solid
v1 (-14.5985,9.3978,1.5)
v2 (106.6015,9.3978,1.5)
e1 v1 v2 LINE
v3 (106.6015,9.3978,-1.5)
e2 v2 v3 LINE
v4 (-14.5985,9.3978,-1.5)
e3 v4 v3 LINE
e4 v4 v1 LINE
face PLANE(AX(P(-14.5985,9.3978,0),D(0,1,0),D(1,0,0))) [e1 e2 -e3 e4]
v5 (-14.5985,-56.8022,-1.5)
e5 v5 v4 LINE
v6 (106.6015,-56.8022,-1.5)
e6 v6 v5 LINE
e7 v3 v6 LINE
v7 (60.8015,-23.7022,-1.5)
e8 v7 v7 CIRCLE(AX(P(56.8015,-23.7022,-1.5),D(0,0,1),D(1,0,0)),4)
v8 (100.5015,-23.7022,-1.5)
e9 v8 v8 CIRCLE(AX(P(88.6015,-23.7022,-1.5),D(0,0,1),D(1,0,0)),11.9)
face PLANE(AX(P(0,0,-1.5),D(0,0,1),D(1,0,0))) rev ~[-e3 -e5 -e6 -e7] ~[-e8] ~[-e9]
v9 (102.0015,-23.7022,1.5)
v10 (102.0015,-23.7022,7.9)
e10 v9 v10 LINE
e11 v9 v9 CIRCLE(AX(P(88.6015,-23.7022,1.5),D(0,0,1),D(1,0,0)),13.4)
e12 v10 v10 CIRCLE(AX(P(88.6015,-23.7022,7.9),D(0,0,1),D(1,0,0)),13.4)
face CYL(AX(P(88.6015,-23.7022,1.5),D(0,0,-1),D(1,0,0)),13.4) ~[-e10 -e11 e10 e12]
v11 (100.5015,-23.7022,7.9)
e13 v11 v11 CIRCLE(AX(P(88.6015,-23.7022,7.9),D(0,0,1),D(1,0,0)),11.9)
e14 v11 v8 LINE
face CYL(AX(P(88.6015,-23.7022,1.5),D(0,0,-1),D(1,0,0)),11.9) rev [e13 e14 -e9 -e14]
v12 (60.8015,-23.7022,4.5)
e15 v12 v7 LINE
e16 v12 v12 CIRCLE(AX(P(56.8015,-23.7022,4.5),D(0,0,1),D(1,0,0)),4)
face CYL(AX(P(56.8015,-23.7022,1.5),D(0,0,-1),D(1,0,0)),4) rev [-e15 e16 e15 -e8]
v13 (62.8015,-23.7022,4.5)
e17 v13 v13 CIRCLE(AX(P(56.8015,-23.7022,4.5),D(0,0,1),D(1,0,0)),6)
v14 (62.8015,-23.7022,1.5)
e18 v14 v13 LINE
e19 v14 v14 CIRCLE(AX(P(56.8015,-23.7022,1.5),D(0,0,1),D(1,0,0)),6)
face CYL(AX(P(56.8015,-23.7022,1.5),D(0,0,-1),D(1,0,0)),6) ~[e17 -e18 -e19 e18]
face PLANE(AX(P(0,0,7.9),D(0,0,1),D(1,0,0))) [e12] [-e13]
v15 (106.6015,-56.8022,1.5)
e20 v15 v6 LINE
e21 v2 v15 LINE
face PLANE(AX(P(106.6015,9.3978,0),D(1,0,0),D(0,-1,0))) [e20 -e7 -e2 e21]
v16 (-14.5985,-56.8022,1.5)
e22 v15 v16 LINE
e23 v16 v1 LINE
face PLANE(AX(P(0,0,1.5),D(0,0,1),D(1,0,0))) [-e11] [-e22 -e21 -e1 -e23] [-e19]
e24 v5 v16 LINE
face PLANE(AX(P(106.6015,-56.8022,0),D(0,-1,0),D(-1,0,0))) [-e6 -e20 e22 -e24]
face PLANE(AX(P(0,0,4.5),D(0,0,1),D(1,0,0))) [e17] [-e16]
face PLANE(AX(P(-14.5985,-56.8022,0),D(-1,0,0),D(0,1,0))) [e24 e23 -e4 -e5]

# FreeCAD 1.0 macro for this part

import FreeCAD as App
import Part
import Sketcher

V = App.Vector
Q = App.Units.Quantity

doc = App.newDocument("Part")
body = doc.addObject("PartDesign::Body", "Body")

# Sketch on XY plane
sketch1 = doc.addObject("Sketcher::SketchObject", "Sketch")
body.addObject(sketch1)
sketch1.AttachmentSupport = (doc.XY_Plane, [""])
sketch1.MapMode = "FlatFace"
sketch1.addGeometry(Part.LineSegment(V(106.6, 9.4, 0), V(-14.6, 9.4, 0)), False)
sketch1.addGeometry(Part.LineSegment(V(-14.6, 9.4, 0), V(-14.6, -56.8, 0)), False)
sketch1.addGeometry(Part.LineSegment(V(-14.6, -56.8, 0), V(106.6, -56.8, 0)), False)
sketch1.addGeometry(Part.LineSegment(V(106.6, -56.8, 0), V(106.6, 9.4, 0)), False)
sketch1.addGeometry(Part.Circle(V(56.8, -23.7, 0), V(0, 0, 1), 4), False)
sketch1.addGeometry(Part.Circle(V(88.6, -23.7, 0), V(0, 0, 1), 11.9), False)
sketch1.addConstraint(Sketcher.Constraint("Coincident", 0, 2, 1, 1))
sketch1.addConstraint(Sketcher.Constraint("Coincident", 1, 2, 2, 1))
sketch1.addConstraint(Sketcher.Constraint("Coincident", 2, 2, 3, 1))
sketch1.addConstraint(Sketcher.Constraint("Coincident", 3, 2, 0, 1))
sketch1.addConstraint(Sketcher.Constraint("Horizontal", 0))
sketch1.addConstraint(Sketcher.Constraint("Vertical", 1))
sketch1.addConstraint(Sketcher.Constraint("Horizontal", 2))
sketch1.addConstraint(Sketcher.Constraint("Vertical", 3))
sketch1.addConstraint(Sketcher.Constraint("Horizontal", 4, 3, 5, 3))
sketch1.addConstraint(Sketcher.Constraint("Diameter", 4, Q("8 mm")))
sketch1.addConstraint(Sketcher.Constraint("Diameter", 5, Q("23.8 mm")))
sketch1.addConstraint(Sketcher.Constraint("DistanceX", 0, 2, 0, 1, Q("121.2 mm")))
sketch1.addConstraint(Sketcher.Constraint("DistanceY", 1, 2, 1, 1, Q("66.2 mm")))
sketch1.addConstraint(Sketcher.Constraint("DistanceX", 5, 3, 2, 2, Q("18 mm")))
sketch1.addConstraint(Sketcher.Constraint("DistanceX", 4, 3, 5, 3, Q("31.8 mm")))
sketch1.addConstraint(Sketcher.Constraint("DistanceY", 4, 3, 0, 2, Q("33.1 mm")))
sketch1.addConstraint(Sketcher.Constraint("DistanceX", -1, 1, 4, 3, Q("56.8015 mm")))
sketch1.addConstraint(Sketcher.Constraint("DistanceY", 4, 3, -1, 1, Q("23.7022 mm")))
pad1 = doc.addObject("PartDesign::Pad", "Pad")
body.addObject(pad1)
pad1.Profile = sketch1
pad1.Length = 3
pad1.Midplane = True

# Sketch on XY plane
sketch2 = doc.addObject("Sketcher::SketchObject", "Sketch001")
body.addObject(sketch2)
sketch2.AttachmentSupport = (doc.XY_Plane, [""])
sketch2.MapMode = "FlatFace"
sketch2.AttachmentOffset = App.Placement(V(0, 0, 1.5), App.Rotation())
sketch2.addGeometry(Part.Circle(V(56.8, -23.7, 0), V(0, 0, 1), 6), False)
sketch2.addGeometry(Part.Circle(V(56.8, -23.7, 0), V(0, 0, 1), 4), False)
sketch2.addConstraint(Sketcher.Constraint("Coincident", 1, 3, 0, 3))
sketch2.addConstraint(Sketcher.Constraint("Diameter", 0, Q("12 mm")))
sketch2.addConstraint(Sketcher.Constraint("Diameter", 1, Q("8 mm")))
sketch2.addConstraint(Sketcher.Constraint("DistanceX", -1, 1, 0, 3, Q("56.8015 mm")))
sketch2.addConstraint(Sketcher.Constraint("DistanceY", 0, 3, -1, 1, Q("23.7022 mm")))
pad2 = doc.addObject("PartDesign::Pad", "Pad001")
body.addObject(pad2)
pad2.Profile = sketch2
pad2.Length = 3

# Sketch on XY plane
sketch3 = doc.addObject("Sketcher::SketchObject", "Sketch002")
body.addObject(sketch3)
sketch3.AttachmentSupport = (doc.XY_Plane, [""])
sketch3.MapMode = "FlatFace"
sketch3.AttachmentOffset = App.Placement(V(0, 0, 1.5), App.Rotation())
sketch3.addGeometry(Part.Circle(V(89, -24, 0), V(0, 0, 1), 13), False)
sketch3.addGeometry(Part.Circle(V(89, -24, 0), V(0, 0, 1), 12), False)
sketch3.addConstraint(Sketcher.Constraint("Coincident", 1, 3, 0, 3))
sketch3.addConstraint(Sketcher.Constraint("Diameter", 0, Q("26.8 mm")))
sketch3.addConstraint(Sketcher.Constraint("Diameter", 1, Q("23.8 mm")))
sketch3.addConstraint(Sketcher.Constraint("DistanceX", -1, 1, 0, 3, Q("88.6015 mm")))
sketch3.addConstraint(Sketcher.Constraint("DistanceY", 0, 3, -1, 1, Q("23.7022 mm")))
pad3 = doc.addObject("PartDesign::Pad", "Pad002")
body.addObject(pad3)
pad3.Profile = sketch3
pad3.Length = 6.4

doc.recompute()
